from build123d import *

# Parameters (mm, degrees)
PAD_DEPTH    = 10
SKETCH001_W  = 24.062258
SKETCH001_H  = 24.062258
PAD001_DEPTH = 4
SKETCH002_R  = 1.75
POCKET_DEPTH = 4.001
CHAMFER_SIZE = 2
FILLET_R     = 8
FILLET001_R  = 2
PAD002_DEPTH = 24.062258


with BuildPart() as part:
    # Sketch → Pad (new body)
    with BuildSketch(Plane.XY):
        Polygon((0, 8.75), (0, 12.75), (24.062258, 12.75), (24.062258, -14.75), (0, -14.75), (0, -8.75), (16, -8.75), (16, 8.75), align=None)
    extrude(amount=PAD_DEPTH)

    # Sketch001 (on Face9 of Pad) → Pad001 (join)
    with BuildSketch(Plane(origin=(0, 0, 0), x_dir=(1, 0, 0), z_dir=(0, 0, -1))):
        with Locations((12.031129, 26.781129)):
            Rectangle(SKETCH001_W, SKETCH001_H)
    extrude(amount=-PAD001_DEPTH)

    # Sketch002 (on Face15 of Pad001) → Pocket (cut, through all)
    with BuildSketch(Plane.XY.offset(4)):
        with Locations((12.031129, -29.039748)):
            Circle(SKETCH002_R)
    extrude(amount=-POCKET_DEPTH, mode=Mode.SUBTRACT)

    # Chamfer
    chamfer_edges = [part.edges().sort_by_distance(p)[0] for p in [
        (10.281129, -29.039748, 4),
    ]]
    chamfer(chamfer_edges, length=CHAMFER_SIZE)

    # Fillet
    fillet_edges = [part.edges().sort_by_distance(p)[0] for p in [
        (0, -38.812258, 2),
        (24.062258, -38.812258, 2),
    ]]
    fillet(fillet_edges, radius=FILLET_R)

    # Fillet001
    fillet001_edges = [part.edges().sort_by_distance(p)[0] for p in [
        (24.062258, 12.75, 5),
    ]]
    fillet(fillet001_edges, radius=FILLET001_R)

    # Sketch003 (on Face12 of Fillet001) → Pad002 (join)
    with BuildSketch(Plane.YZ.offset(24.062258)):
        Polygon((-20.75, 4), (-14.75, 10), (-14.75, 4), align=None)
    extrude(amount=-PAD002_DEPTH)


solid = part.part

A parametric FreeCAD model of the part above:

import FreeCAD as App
import Part
import Sketcher
Q = App.Units.Quantity


def edges_at(feature, points):
    """Names of the edges that pass closest to the given points."""
    edges = feature.Shape.Edges
    near = lambda p: min(range(len(edges)), key=lambda i: edges[i].distToShape(Part.Vertex(*p))[0])
    return sorted({f"Edge{near(p) + 1}" for p in points})

doc = App.newDocument("Part")
body = doc.addObject("PartDesign::Body", "Body")

# Sketch on XY plane
sketch1 = body.newObject("Sketcher::SketchObject", "Sketch")
sketch1.AttachmentSupport = (doc.getObject("XY_Plane"), [""])
sketch1.MapMode = "FlatFace"
sketch1.addGeometry([
    Part.LineSegment(App.Vector(0, 12.75, 0), App.Vector(0, 8.75, 0)),  # 0
    Part.LineSegment(App.Vector(0, 8.75, 0), App.Vector(16, 8.75, 0)),  # 1
    Part.LineSegment(App.Vector(16, 8.75, 0), App.Vector(16, -8.75, 0)),  # 2
    Part.LineSegment(App.Vector(16, -8.75, 0), App.Vector(0, -8.75, 0)),  # 3
    Part.LineSegment(App.Vector(0, -8.75, 0), App.Vector(0, -14.75, 0)),  # 4
    Part.LineSegment(App.Vector(0, -14.75, 0), App.Vector(24.062258, -14.75, 0)),  # 5
    Part.LineSegment(App.Vector(24.062258, -14.75, 0), App.Vector(24.062258, 12.75, 0)),  # 6
    Part.LineSegment(App.Vector(24.062258, 12.75, 0), App.Vector(0, 12.75, 0)),  # 7
], False)
sketch1.addConstraint([
    Sketcher.Constraint("Coincident", 0, 2, 1, 1),
    Sketcher.Constraint("Coincident", 1, 2, 2, 1),
    Sketcher.Constraint("Coincident", 2, 2, 3, 1),
    Sketcher.Constraint("Coincident", 3, 2, 4, 1),
    Sketcher.Constraint("Coincident", 4, 2, 5, 1),
    Sketcher.Constraint("Coincident", 5, 2, 6, 1),
    Sketcher.Constraint("Coincident", 6, 2, 7, 1),
    Sketcher.Constraint("Coincident", 7, 2, 0, 1),
    Sketcher.Constraint("Vertical", 0),
    Sketcher.Constraint("Horizontal", 1),
    Sketcher.Constraint("Vertical", 2),
    Sketcher.Constraint("Horizontal", 3),
    Sketcher.Constraint("Vertical", 4),
    Sketcher.Constraint("Horizontal", 5),
    Sketcher.Constraint("Vertical", 6),
    Sketcher.Constraint("Horizontal", 7),
    Sketcher.Constraint("Symmetric", 0, 2, 3, 2, -1, 1),
    Sketcher.Constraint("PointOnObject", 0, 2, -2),
    Sketcher.Constraint("DistanceX", 1, 1, 1, 2, Q("16 mm")),
    Sketcher.Constraint("DistanceY", 0, 2, 0, 1, Q("4 mm")),
    Sketcher.Constraint("DistanceY", 4, 2, 4, 1, Q("6 mm")),
    Sketcher.Constraint("DistanceY", 2, 2, 2, 1, Q("17.5 mm")),
    Sketcher.Constraint("DistanceX", 5, 1, 5, 2, Q("24.062258 mm")),
])
pad1 = body.newObject("PartDesign::Pad", "Pad")
pad1.Profile = sketch1
pad1.Length = 10

# Sketch on XY plane
sketch2 = body.newObject("Sketcher::SketchObject", "Sketch001")
sketch2.AttachmentSupport = (doc.getObject("XY_Plane"), [""])
sketch2.MapMode = "FlatFace"
sketch2.addGeometry([
    Part.LineSegment(App.Vector(0, -38.812258, 0), App.Vector(0, -14.75, 0)),
    Part.LineSegment(App.Vector(0, -14.75, 0), App.Vector(24.062258, -14.75, 0)),
    Part.LineSegment(App.Vector(24.062258, -14.75, 0), App.Vector(24.062258, -38.812258, 0)),
    Part.LineSegment(App.Vector(24.062258, -38.812258, 0), App.Vector(0, -38.812258, 0)),
], False)
sketch2.addConstraint([
    Sketcher.Constraint("Coincident", 0, 2, 1, 1),
    Sketcher.Constraint("Coincident", 1, 2, 2, 1),
    Sketcher.Constraint("Coincident", 2, 2, 3, 1),
    Sketcher.Constraint("Coincident", 3, 2, 0, 1),
    Sketcher.Constraint("Vertical", 0),
    Sketcher.Constraint("Horizontal", 1),
    Sketcher.Constraint("Vertical", 2),
    Sketcher.Constraint("Horizontal", 3),
    Sketcher.Constraint("PointOnObject", 0, 2, -2),
    Sketcher.Constraint("Equal", 3, 0),
    Sketcher.Constraint("DistanceY", 0, 2, -1, 1, Q("14.75 mm")),
    Sketcher.Constraint("DistanceX", 1, 1, 1, 2, Q("24.062258 mm")),
])
pad2 = body.newObject("PartDesign::Pad", "Pad001")
pad2.Profile = sketch2
pad2.Length = 4

# Sketch on XY plane
sketch3 = body.newObject("Sketcher::SketchObject", "Sketch002")
sketch3.AttachmentSupport = (doc.getObject("XY_Plane"), [""])
sketch3.MapMode = "FlatFace"
sketch3.AttachmentOffset = App.Placement(App.Vector(0, 0, 4), App.Rotation())
sketch3.addGeometry(Part.Circle(App.Vector(12.031129, -29.039748, 0), App.Vector(0, 0, 1), 1.75), False)
sketch3.addConstraint([
    Sketcher.Constraint("Diameter", 0, Q("3.5 mm")),
    Sketcher.Constraint("DistanceX", -1, 1, 0, 3, Q("12.031129 mm")),
    Sketcher.Constraint("DistanceY", 0, 3, -1, 1, Q("29.039748 mm")),
])
pocket1 = body.newObject("PartDesign::Pocket", "Pocket")
pocket1.Profile = sketch3
pocket1.Type = "ThroughAll"
doc.recompute()

chamfer = body.newObject("PartDesign::Chamfer", "Chamfer")
chamfer.Base = (pocket1, edges_at(pocket1, [(10.281, -29.04, 4)]))
chamfer.Size = 2
doc.recompute()

fillet = body.newObject("PartDesign::Fillet", "Fillet")
fillet.Base = (chamfer, edges_at(chamfer, [(0, -38.812, 2), (24.062, -38.812, 2)]))
fillet.Radius = 8
doc.recompute()

fillet2 = body.newObject("PartDesign::Fillet", "Fillet001")
fillet2.Base = (fillet, edges_at(fillet, [(24.062, 12.75, 5)]))
fillet2.Radius = 2

# Sketch on YZ plane
sketch4 = body.newObject("Sketcher::SketchObject", "Sketch003")
sketch4.AttachmentSupport = (doc.getObject("YZ_Plane"), [""])
sketch4.MapMode = "FlatFace"
sketch4.AttachmentOffset = App.Placement(App.Vector(0, 0, 24.062258), App.Rotation())
sketch4.addGeometry([
    Part.LineSegment(App.Vector(-14.75, 10, 0), App.Vector(-20.75, 4, 0)),
    Part.LineSegment(App.Vector(-20.75, 4, 0), App.Vector(-14.75, 4, 0)),
    Part.LineSegment(App.Vector(-14.75, 4, 0), App.Vector(-14.75, 10, 0)),
], False)
sketch4.addConstraint([
    Sketcher.Constraint("Coincident", 0, 2, 1, 1),
    Sketcher.Constraint("Coincident", 1, 2, 2, 1),
    Sketcher.Constraint("Coincident", 2, 2, 0, 1),
    Sketcher.Constraint("Horizontal", 1),
    Sketcher.Constraint("Vertical", 2),
    Sketcher.Constraint("Equal", 1, 2),
    Sketcher.Constraint("DistanceX", 1, 1, 1, 2, Q("6 mm")),
    Sketcher.Constraint("DistanceY", -1, 1, 0, 2, Q("4 mm")),
    Sketcher.Constraint("DistanceX", 0, 2, -1, 1, Q("20.75 mm")),
])
pad3 = body.newObject("PartDesign::Pad", "Pad002")
pad3.Profile = sketch4
pad3.Length = 24.062258
pad3.Reversed = True

doc.recompute()
